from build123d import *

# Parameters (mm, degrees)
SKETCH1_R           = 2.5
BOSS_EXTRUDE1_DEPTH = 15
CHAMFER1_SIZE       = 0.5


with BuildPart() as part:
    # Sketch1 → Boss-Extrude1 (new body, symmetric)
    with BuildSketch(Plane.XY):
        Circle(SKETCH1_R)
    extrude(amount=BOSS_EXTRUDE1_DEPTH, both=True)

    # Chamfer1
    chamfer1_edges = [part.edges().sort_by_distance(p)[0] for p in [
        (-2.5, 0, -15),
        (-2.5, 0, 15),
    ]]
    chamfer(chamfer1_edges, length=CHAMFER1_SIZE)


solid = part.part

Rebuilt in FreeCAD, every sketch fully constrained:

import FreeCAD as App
import Part
import Sketcher

V = App.Vector


def edges_at(feature, points):
    """Names of the edges that pass closest to the given points."""
    edges = feature.Shape.Edges
    near = lambda p: min(range(len(edges)), key=lambda i: edges[i].distToShape(Part.Vertex(*p))[0])
    return sorted({f"Edge{near(p) + 1}" for p in points})

doc = App.newDocument("Part")
body = doc.addObject("PartDesign::Body", "Body")

# Sketch on XY plane
sketch1 = body.newObject("Sketcher::SketchObject", "Sketch")
sketch1.AttachmentSupport = (doc.getObject("XY_Plane"), [""])
sketch1.MapMode = "FlatFace"
sketch1.addGeometry(Part.Circle(V(0, 0, 0), V(0, 0, 1), 2.5), False)
sketch1.addConstraint([
    Sketcher.Constraint("Coincident", 0, 3, -1, 1),
    Sketcher.Constraint("Diameter", 0, 5.0),
])
pad1 = body.newObject("PartDesign::Pad", "Pad")
pad1.Profile = sketch1
pad1.Length = 30
pad1.Midplane = True
doc.recompute()

chamfer = body.newObject("PartDesign::Chamfer", "Chamfer")
chamfer.Base = (pad1, edges_at(pad1, [(-2.5, 0, -15), (-2.5, 0, 15)]))
chamfer.Size = 0.5

doc.recompute()
